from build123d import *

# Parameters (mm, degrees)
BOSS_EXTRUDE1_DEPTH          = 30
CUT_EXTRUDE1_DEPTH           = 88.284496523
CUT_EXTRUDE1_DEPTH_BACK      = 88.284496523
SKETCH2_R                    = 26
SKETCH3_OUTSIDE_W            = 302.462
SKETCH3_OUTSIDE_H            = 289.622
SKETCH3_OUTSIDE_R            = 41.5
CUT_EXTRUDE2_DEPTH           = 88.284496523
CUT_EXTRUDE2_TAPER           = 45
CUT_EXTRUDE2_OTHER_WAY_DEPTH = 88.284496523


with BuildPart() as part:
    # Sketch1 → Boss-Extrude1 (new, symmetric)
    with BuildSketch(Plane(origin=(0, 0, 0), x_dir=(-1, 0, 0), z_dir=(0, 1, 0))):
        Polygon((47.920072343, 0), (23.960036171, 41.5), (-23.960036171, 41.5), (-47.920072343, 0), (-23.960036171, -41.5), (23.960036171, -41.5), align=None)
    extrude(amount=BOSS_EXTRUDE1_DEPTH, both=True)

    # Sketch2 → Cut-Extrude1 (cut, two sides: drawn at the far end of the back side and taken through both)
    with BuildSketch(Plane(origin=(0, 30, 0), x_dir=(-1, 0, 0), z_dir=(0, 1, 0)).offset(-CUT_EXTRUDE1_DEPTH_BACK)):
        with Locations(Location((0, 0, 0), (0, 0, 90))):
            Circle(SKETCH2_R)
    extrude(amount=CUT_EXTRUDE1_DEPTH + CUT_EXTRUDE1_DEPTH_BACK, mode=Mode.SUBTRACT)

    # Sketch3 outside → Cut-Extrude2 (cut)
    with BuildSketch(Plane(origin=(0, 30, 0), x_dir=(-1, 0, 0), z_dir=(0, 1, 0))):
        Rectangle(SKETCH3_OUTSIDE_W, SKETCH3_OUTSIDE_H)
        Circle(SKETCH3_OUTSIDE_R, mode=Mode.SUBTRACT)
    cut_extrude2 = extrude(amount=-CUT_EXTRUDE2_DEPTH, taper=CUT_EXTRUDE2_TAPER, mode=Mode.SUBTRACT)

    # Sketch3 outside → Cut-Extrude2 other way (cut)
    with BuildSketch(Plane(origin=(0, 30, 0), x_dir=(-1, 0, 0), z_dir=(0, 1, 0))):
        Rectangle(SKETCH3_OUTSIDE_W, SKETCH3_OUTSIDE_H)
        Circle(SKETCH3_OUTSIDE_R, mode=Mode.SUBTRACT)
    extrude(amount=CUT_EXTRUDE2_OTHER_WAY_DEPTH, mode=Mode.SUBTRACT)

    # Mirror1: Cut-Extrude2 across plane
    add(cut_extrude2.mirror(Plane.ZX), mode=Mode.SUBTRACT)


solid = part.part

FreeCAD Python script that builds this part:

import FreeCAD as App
import Part
import Sketcher
from FreeCAD import Vector
Q = App.Units.Quantity

doc = App.newDocument("Part")
body = doc.addObject("PartDesign::Body", "Body")

sketch1 = body.newObject("Sketcher::SketchObject", "Sketch")
sketch1.AttachmentSupport = (doc.getObject("XZ_Plane"), [""])
sketch1.MapMode = "FlatFace"
sketch1.addGeometry(Part.LineSegment(Vector(-48, 0, 0), Vector(-24, 42, 0)), False)
sketch1.addGeometry(Part.LineSegment(Vector(-24, 42, 0), Vector(24, 42, 0)), False)
sketch1.addGeometry(Part.LineSegment(Vector(24, 42, 0), Vector(48, 0, 0)), False)
sketch1.addGeometry(Part.LineSegment(Vector(48, 0, 0), Vector(24, -42, 0)), False)
sketch1.addGeometry(Part.LineSegment(Vector(24, -42, 0), Vector(-24, -42, 0)), False)
sketch1.addGeometry(Part.LineSegment(Vector(-24, -42, 0), Vector(-48, 0, 0)), False)
sketch1.addConstraint(Sketcher.Constraint("Coincident", 0, 2, 1, 1))
sketch1.addConstraint(Sketcher.Constraint("Coincident", 1, 2, 2, 1))
sketch1.addConstraint(Sketcher.Constraint("Coincident", 2, 2, 3, 1))
sketch1.addConstraint(Sketcher.Constraint("Coincident", 3, 2, 4, 1))
sketch1.addConstraint(Sketcher.Constraint("Coincident", 4, 2, 5, 1))
sketch1.addConstraint(Sketcher.Constraint("Coincident", 5, 2, 0, 1))
sketch1.addConstraint(Sketcher.Constraint("Horizontal", 1))
sketch1.addConstraint(Sketcher.Constraint("Horizontal", 4))
sketch1.addConstraint(Sketcher.Constraint("Symmetric", 0, 2, 3, 2, -1, 1))
sketch1.addConstraint(Sketcher.Constraint("Symmetric", 2, 2, 5, 2, -1, 1))
sketch1.addConstraint(Sketcher.Constraint("PointOnObject", 2, 2, -1))
sketch1.addConstraint(Sketcher.Constraint("Parallel", 2, 5))
sketch1.addConstraint(Sketcher.Constraint("Vertical", 1, 2, 3, 2))
sketch1.addConstraint(Sketcher.Constraint("Angle", 0, Q("60 deg")))
sketch1.addConstraint(Sketcher.Constraint("DistanceY", 3, 2, 1, 2, 83.0))
sketch1.addConstraint(Sketcher.Constraint("DistanceX", 1, 1, 1, 2, 47.920072))
pad1 = body.newObject("PartDesign::Pad", "Pad")
pad1.Profile = sketch1
pad1.Length = 60
pad1.Midplane = True

sketch2 = body.newObject("Sketcher::SketchObject", "Sketch001")
sketch2.AttachmentSupport = (doc.getObject("XZ_Plane"), [""])
sketch2.MapMode = "FlatFace"
sketch2.AttachmentOffset = App.Placement(Vector(0, 0, -30), App.Rotation())
sketch2.addGeometry(Part.Circle(Vector(0, 0, 0), Vector(0, 0, 1), 26), False)
sketch2.addConstraint(Sketcher.Constraint("Coincident", 0, 3, -1, 1))
sketch2.addConstraint(Sketcher.Constraint("Diameter", 0, 52.0))
pocket1 = body.newObject("PartDesign::Pocket", "Pocket")
pocket1.Profile = sketch2
pocket1.Type = "ThroughAll"
pocket1.Midplane = True

sketch3 = body.newObject("Sketcher::SketchObject", "Sketch002")
sketch3.AttachmentSupport = (doc.getObject("XZ_Plane"), [""])
sketch3.MapMode = "FlatFace"
sketch3.AttachmentOffset = App.Placement(Vector(0, 0, -30), App.Rotation())
sketch3.addGeometry(Part.LineSegment(Vector(151, 145, 0), Vector(151, -145, 0)), False)
sketch3.addGeometry(Part.LineSegment(Vector(151, -145, 0), Vector(-151, -145, 0)), False)
sketch3.addGeometry(Part.LineSegment(Vector(-151, -145, 0), Vector(-151, 145, 0)), False)
sketch3.addGeometry(Part.LineSegment(Vector(-151, 145, 0), Vector(151, 145, 0)), False)
sketch3.addGeometry(Part.Circle(Vector(0, 0, 0), Vector(0, 0, 1), 42), False)
sketch3.addConstraint(Sketcher.Constraint("Coincident", 0, 2, 1, 1))
sketch3.addConstraint(Sketcher.Constraint("Coincident", 1, 2, 2, 1))
sketch3.addConstraint(Sketcher.Constraint("Coincident", 2, 2, 3, 1))
sketch3.addConstraint(Sketcher.Constraint("Coincident", 3, 2, 0, 1))
sketch3.addConstraint(Sketcher.Constraint("Vertical", 0))
sketch3.addConstraint(Sketcher.Constraint("Horizontal", 1))
sketch3.addConstraint(Sketcher.Constraint("Vertical", 2))
sketch3.addConstraint(Sketcher.Constraint("Horizontal", 3))
sketch3.addConstraint(Sketcher.Constraint("Coincident", 4, 3, -1, 1))
sketch3.addConstraint(Sketcher.Constraint("Symmetric", 0, 2, 2, 2, -1, 1))
sketch3.addConstraint(Sketcher.Constraint("Diameter", 4, 83.0))
sketch3.addConstraint(Sketcher.Constraint("DistanceX", 1, 2, 1, 1, 302.462))
sketch3.addConstraint(Sketcher.Constraint("DistanceY", 0, 2, 0, 1, 289.622))
pocket2 = body.newObject("PartDesign::Pocket", "Pocket001")
pocket2.Profile = sketch3
pocket2.Length = 88.284497
pocket2.Reversed = True
pocket2.TaperAngle = 45

sketch4 = body.newObject("Sketcher::SketchObject", "Sketch003")
sketch4.AttachmentSupport = (doc.getObject("XZ_Plane"), [""])
sketch4.MapMode = "FlatFace"
sketch4.AttachmentOffset = App.Placement(Vector(0, 0, -30), App.Rotation())
sketch4.addGeometry(Part.LineSegment(Vector(151, 145, 0), Vector(151, -145, 0)), False)
sketch4.addGeometry(Part.LineSegment(Vector(151, -145, 0), Vector(-151, -145, 0)), False)
sketch4.addGeometry(Part.LineSegment(Vector(-151, -145, 0), Vector(-151, 145, 0)), False)
sketch4.addGeometry(Part.LineSegment(Vector(-151, 145, 0), Vector(151, 145, 0)), False)
sketch4.addGeometry(Part.Circle(Vector(0, 0, 0), Vector(0, 0, 1), 42), False)
sketch4.addConstraint(Sketcher.Constraint("Coincident", 0, 2, 1, 1))
sketch4.addConstraint(Sketcher.Constraint("Coincident", 1, 2, 2, 1))
sketch4.addConstraint(Sketcher.Constraint("Coincident", 2, 2, 3, 1))
sketch4.addConstraint(Sketcher.Constraint("Coincident", 3, 2, 0, 1))
sketch4.addConstraint(Sketcher.Constraint("Vertical", 0))
sketch4.addConstraint(Sketcher.Constraint("Horizontal", 1))
sketch4.addConstraint(Sketcher.Constraint("Vertical", 2))
sketch4.addConstraint(Sketcher.Constraint("Horizontal", 3))
sketch4.addConstraint(Sketcher.Constraint("Coincident", 4, 3, -1, 1))
sketch4.addConstraint(Sketcher.Constraint("Symmetric", 0, 2, 2, 2, -1, 1))
sketch4.addConstraint(Sketcher.Constraint("Diameter", 4, 83.0))
sketch4.addConstraint(Sketcher.Constraint("DistanceX", 1, 2, 1, 1, 302.462))
sketch4.addConstraint(Sketcher.Constraint("DistanceY", 0, 2, 0, 1, 289.622))
pocket3 = body.newObject("PartDesign::Pocket", "Pocket002")
pocket3.Profile = sketch4
pocket3.Length = 88.284497
doc.recompute()

mirrored = body.newObject("PartDesign::Mirrored", "Mirrored")
mirrored.Originals = [pocket2]
mirrored.MirrorPlane = (doc.getObject("XZ_Plane"), [""])
body.Tip = mirrored

doc.recompute()
